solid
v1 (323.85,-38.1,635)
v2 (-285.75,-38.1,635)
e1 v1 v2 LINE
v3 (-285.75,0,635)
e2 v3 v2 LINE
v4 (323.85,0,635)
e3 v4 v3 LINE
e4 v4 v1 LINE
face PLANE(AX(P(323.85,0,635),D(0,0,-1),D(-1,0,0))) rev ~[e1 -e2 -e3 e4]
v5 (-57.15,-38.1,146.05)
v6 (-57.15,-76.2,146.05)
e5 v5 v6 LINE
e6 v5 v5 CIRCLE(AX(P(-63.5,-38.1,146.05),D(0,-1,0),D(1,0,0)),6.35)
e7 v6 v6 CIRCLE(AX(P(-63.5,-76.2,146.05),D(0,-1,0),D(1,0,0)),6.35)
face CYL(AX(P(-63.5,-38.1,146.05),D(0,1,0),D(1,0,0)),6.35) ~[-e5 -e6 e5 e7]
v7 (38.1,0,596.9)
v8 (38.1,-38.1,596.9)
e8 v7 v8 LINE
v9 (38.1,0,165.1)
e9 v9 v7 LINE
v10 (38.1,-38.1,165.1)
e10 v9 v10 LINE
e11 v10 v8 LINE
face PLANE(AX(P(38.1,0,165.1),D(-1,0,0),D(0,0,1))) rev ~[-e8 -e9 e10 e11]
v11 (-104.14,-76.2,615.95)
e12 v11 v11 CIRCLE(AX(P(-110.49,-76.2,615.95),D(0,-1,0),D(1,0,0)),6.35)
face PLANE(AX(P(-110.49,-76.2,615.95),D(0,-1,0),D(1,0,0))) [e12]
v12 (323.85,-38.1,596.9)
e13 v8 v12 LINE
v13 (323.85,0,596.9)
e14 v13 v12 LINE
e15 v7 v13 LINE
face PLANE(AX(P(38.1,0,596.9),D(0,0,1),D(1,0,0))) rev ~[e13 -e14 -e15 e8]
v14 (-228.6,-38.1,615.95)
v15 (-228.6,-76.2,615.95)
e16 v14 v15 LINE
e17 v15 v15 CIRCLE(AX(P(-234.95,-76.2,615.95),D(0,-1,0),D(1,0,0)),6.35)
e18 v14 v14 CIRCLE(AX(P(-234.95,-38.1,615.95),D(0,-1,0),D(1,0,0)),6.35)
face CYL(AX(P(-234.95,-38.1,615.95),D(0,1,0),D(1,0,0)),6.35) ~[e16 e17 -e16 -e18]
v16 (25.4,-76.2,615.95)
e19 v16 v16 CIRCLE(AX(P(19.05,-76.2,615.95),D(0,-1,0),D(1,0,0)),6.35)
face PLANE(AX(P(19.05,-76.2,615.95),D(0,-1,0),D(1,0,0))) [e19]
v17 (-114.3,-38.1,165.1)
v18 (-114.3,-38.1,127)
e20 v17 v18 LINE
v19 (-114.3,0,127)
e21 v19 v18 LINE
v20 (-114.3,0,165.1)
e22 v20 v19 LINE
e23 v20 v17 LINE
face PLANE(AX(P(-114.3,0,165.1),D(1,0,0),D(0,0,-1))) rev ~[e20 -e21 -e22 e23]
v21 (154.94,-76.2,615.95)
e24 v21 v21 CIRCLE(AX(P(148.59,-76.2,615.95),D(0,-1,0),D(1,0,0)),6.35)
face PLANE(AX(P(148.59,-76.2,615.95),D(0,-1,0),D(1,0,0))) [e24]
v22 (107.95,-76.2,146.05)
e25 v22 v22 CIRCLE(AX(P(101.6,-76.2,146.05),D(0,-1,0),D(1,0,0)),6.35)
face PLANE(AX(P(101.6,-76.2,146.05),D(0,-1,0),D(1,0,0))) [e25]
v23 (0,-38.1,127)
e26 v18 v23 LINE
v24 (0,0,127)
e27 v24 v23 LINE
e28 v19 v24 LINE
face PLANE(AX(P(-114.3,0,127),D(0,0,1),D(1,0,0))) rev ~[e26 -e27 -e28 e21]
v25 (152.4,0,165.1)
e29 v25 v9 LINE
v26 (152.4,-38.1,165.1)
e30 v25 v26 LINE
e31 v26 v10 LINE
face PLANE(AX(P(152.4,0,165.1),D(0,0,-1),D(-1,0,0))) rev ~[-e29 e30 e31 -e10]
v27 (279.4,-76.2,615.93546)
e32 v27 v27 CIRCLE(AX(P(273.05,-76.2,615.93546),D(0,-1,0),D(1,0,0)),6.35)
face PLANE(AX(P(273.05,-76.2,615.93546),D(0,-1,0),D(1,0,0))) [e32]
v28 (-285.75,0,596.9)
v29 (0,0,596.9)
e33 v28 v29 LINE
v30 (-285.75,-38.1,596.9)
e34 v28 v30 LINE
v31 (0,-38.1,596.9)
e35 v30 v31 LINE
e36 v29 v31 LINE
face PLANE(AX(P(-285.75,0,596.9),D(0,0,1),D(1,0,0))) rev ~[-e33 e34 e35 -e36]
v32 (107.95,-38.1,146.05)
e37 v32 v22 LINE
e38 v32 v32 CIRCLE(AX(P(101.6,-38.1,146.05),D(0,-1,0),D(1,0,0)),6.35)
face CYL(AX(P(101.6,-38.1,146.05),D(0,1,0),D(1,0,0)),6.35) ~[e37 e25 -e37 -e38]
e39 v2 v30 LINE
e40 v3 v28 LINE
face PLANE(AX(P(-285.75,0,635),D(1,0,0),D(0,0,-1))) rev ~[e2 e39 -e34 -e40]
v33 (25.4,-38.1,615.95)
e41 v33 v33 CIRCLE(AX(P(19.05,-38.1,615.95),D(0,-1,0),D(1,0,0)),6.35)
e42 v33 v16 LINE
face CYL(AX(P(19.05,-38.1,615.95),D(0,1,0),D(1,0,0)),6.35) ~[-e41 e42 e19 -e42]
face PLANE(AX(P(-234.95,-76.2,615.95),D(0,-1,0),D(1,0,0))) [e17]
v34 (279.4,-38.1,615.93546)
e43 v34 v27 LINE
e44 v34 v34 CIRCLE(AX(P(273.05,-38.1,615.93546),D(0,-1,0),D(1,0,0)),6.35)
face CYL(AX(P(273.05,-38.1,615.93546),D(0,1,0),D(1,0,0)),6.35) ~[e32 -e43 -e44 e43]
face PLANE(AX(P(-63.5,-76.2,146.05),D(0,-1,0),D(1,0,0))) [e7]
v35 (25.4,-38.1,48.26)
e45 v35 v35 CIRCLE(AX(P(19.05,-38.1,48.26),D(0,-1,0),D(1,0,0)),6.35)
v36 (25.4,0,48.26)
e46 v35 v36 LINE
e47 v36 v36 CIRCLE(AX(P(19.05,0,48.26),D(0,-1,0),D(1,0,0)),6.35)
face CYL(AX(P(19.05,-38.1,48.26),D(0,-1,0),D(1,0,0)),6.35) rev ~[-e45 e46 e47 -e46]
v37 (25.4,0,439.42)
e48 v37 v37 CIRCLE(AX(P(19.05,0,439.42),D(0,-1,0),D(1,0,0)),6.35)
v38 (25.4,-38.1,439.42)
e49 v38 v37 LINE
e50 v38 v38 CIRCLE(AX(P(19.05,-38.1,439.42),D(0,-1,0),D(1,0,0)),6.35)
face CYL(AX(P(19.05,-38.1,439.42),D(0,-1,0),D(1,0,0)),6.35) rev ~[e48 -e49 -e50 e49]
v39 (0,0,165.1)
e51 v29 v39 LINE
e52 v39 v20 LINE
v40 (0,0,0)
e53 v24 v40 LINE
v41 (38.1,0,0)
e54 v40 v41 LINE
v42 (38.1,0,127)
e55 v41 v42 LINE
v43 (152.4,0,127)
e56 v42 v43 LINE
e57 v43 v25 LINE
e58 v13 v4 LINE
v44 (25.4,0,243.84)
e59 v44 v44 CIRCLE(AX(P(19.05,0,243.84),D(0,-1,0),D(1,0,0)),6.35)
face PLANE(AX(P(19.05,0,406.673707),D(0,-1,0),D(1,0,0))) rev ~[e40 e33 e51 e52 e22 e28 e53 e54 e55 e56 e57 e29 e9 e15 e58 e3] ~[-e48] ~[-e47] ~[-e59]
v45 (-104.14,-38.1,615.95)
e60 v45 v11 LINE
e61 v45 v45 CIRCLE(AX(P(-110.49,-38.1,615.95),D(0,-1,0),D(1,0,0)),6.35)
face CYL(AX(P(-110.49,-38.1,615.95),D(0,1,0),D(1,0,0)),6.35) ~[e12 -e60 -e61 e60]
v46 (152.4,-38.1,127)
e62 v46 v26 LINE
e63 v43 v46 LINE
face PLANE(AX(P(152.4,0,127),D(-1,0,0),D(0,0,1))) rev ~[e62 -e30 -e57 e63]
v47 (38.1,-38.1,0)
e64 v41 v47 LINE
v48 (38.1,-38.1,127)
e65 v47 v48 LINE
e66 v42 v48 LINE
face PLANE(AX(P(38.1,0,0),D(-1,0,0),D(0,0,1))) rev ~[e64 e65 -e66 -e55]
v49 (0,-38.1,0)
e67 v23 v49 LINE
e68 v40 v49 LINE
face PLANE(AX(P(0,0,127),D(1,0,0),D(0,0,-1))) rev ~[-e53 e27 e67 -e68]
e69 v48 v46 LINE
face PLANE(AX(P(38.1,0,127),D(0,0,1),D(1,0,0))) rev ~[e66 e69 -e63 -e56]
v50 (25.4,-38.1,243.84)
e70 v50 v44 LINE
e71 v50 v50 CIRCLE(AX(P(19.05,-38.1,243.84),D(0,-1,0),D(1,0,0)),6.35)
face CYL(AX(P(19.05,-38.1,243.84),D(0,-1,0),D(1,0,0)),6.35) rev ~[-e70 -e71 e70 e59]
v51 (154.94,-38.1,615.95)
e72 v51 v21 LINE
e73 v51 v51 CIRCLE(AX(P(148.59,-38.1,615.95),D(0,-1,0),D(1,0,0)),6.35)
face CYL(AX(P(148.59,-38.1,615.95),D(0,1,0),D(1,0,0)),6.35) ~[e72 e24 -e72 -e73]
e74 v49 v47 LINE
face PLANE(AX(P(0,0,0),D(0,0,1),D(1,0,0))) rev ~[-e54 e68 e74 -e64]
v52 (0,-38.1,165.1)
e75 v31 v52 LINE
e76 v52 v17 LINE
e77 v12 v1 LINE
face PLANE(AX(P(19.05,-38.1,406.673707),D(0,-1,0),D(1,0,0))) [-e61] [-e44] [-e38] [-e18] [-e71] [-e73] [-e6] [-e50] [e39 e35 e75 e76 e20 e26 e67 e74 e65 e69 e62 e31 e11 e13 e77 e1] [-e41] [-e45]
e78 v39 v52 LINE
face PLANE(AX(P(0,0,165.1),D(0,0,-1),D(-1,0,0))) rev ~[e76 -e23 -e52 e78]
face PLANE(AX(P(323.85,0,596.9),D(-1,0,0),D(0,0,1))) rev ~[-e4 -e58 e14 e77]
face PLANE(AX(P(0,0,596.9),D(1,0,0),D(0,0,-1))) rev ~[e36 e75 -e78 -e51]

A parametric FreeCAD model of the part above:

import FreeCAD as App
import Part
import Sketcher
Q = App.Units.Quantity

doc = App.newDocument("Part")
body = doc.addObject("PartDesign::Body", "Body")

# Sketch on XZ plane
sketch1 = body.newObject("Sketcher::SketchObject", "Sketch")
sketch1.AttachmentSupport = (doc.getObject("XZ_Plane"), [""])
sketch1.MapMode = "FlatFace"
sketch1.addGeometry([
    Part.LineSegment(App.Vector(323.85, 635, 0), App.Vector(-285.75, 635, 0)),  # 0
    Part.LineSegment(App.Vector(-285.75, 635, 0), App.Vector(-285.75, 596.9, 0)),  # 1
    Part.LineSegment(App.Vector(-285.75, 596.9, 0), App.Vector(0, 596.9, 0)),  # 2
    Part.LineSegment(App.Vector(0, 596.9, 0), App.Vector(0, 165.1, 0)),  # 3
    Part.LineSegment(App.Vector(0, 165.1, 0), App.Vector(-114.3, 165.1, 0)),  # 4
    Part.LineSegment(App.Vector(-114.3, 165.1, 0), App.Vector(-114.3, 127, 0)),  # 5
    Part.LineSegment(App.Vector(-114.3, 127, 0), App.Vector(0, 127, 0)),  # 6
    Part.LineSegment(App.Vector(0, 127, 0), App.Vector(0, 0, 0)),  # 7
    Part.LineSegment(App.Vector(0, 0, 0), App.Vector(38.1, 0, 0)),  # 8
    Part.LineSegment(App.Vector(38.1, 0, 0), App.Vector(38.1, 127, 0)),  # 9
    Part.LineSegment(App.Vector(38.1, 127, 0), App.Vector(152.4, 127, 0)),  # 10
    Part.LineSegment(App.Vector(152.4, 127, 0), App.Vector(152.4, 165.1, 0)),  # 11
    Part.LineSegment(App.Vector(152.4, 165.1, 0), App.Vector(38.1, 165.1, 0)),  # 12
    Part.LineSegment(App.Vector(38.1, 165.1, 0), App.Vector(38.1, 596.9, 0)),  # 13
    Part.LineSegment(App.Vector(38.1, 596.9, 0), App.Vector(323.85, 596.9, 0)),  # 14
    Part.LineSegment(App.Vector(323.85, 596.9, 0), App.Vector(323.85, 635, 0)),  # 15
], False)
sketch1.addConstraint([
    Sketcher.Constraint("Coincident", 0, 2, 1, 1),
    Sketcher.Constraint("Coincident", 1, 2, 2, 1),
    Sketcher.Constraint("Coincident", 2, 2, 3, 1),
    Sketcher.Constraint("Coincident", 3, 2, 4, 1),
    Sketcher.Constraint("Coincident", 4, 2, 5, 1),
    Sketcher.Constraint("Coincident", 5, 2, 6, 1),
    Sketcher.Constraint("Coincident", 6, 2, 7, 1),
    Sketcher.Constraint("Coincident", 7, 2, 8, 1),
    Sketcher.Constraint("Coincident", 8, 2, 9, 1),
    Sketcher.Constraint("Coincident", 9, 2, 10, 1),
    Sketcher.Constraint("Coincident", 10, 2, 11, 1),
    Sketcher.Constraint("Coincident", 11, 2, 12, 1),
    Sketcher.Constraint("Coincident", 12, 2, 13, 1),
    Sketcher.Constraint("Coincident", 13, 2, 14, 1),
    Sketcher.Constraint("Coincident", 14, 2, 15, 1),
    Sketcher.Constraint("Coincident", 15, 2, 0, 1),
    Sketcher.Constraint("Horizontal", 0),
    Sketcher.Constraint("Vertical", 1),
    Sketcher.Constraint("Horizontal", 2),
    Sketcher.Constraint("Vertical", 3),
    Sketcher.Constraint("Horizontal", 4),
    Sketcher.Constraint("Vertical", 5),
    Sketcher.Constraint("Horizontal", 6),
    Sketcher.Constraint("Vertical", 7),
    Sketcher.Constraint("Horizontal", 8),
    Sketcher.Constraint("Vertical", 9),
    Sketcher.Constraint("Horizontal", 10),
    Sketcher.Constraint("Vertical", 11),
    Sketcher.Constraint("Horizontal", 12),
    Sketcher.Constraint("Vertical", 13),
    Sketcher.Constraint("Horizontal", 14),
    Sketcher.Constraint("Vertical", 15),
    Sketcher.Constraint("Coincident", 7, 2, -1, 1),
    Sketcher.Constraint("PointOnObject", 2, 2, -2),
    Sketcher.Constraint("Horizontal", 6, 2, 9, 2),
    Sketcher.Constraint("Horizontal", 4, 2, 11, 2),
    Sketcher.Constraint("Horizontal", 2, 2, 13, 2),
    Sketcher.Constraint("Vertical", 9, 2, 12, 2),
    Sketcher.Constraint("Equal", 6, 10),
    Sketcher.Constraint("Equal", 2, 14),
    Sketcher.Constraint("Equal", 8, 1),
    Sketcher.Constraint("Equal", 1, 5),
    Sketcher.Constraint("DistanceX", 0, 2, 0, 1, Q("24 in")),
    Sketcher.Constraint("DistanceY", 3, 2, 3, 1, Q("17 in")),
    Sketcher.Constraint("DistanceY", 7, 2, 7, 1, Q("5 in")),
    Sketcher.Constraint("DistanceX", 4, 2, 4, 1, Q("4.5 in")),
    Sketcher.Constraint("DistanceX", 8, 1, 8, 2, Q("1.5 in")),
])
pad1 = body.newObject("PartDesign::Pad", "Pad")
pad1.Profile = sketch1
pad1.Length = Q("1.5 in")

# Sketch on XZ plane
sketch2 = body.newObject("Sketcher::SketchObject", "Sketch001")
sketch2.AttachmentSupport = (doc.getObject("XZ_Plane"), [""])
sketch2.MapMode = "FlatFace"
sketch2.addGeometry([
    Part.LineSegment(App.Vector(323.85, 635, 0), App.Vector(-285.75, 635, 0)),  # 0
    Part.LineSegment(App.Vector(-285.75, 635, 0), App.Vector(-285.75, 596.9, 0)),  # 1
    Part.LineSegment(App.Vector(-285.75, 596.9, 0), App.Vector(0, 596.9, 0)),  # 2
    Part.LineSegment(App.Vector(0, 596.9, 0), App.Vector(0, 165.1, 0)),  # 3
    Part.LineSegment(App.Vector(0, 165.1, 0), App.Vector(-114.3, 165.1, 0)),  # 4
    Part.LineSegment(App.Vector(-114.3, 165.1, 0), App.Vector(-114.3, 127, 0)),  # 5
    Part.LineSegment(App.Vector(-114.3, 127, 0), App.Vector(0, 127, 0)),  # 6
    Part.LineSegment(App.Vector(0, 127, 0), App.Vector(0, 0, 0)),  # 7
    Part.LineSegment(App.Vector(0, 0, 0), App.Vector(38.1, 0, 0)),  # 8
    Part.LineSegment(App.Vector(38.1, 0, 0), App.Vector(38.1, 127, 0)),  # 9
    Part.LineSegment(App.Vector(38.1, 127, 0), App.Vector(152.4, 127, 0)),  # 10
    Part.LineSegment(App.Vector(152.4, 127, 0), App.Vector(152.4, 165.1, 0)),  # 11
    Part.LineSegment(App.Vector(152.4, 165.1, 0), App.Vector(38.1, 165.1, 0)),  # 12
    Part.LineSegment(App.Vector(38.1, 165.1, 0), App.Vector(38.1, 596.9, 0)),  # 13
    Part.LineSegment(App.Vector(38.1, 596.9, 0), App.Vector(323.85, 596.9, 0)),  # 14
    Part.LineSegment(App.Vector(323.85, 596.9, 0), App.Vector(323.85, 635, 0)),  # 15
], False)
sketch2.addConstraint([
    Sketcher.Constraint("Coincident", 0, 2, 1, 1),
    Sketcher.Constraint("Coincident", 1, 2, 2, 1),
    Sketcher.Constraint("Coincident", 2, 2, 3, 1),
    Sketcher.Constraint("Coincident", 3, 2, 4, 1),
    Sketcher.Constraint("Coincident", 4, 2, 5, 1),
    Sketcher.Constraint("Coincident", 5, 2, 6, 1),
    Sketcher.Constraint("Coincident", 6, 2, 7, 1),
    Sketcher.Constraint("Coincident", 7, 2, 8, 1),
    Sketcher.Constraint("Coincident", 8, 2, 9, 1),
    Sketcher.Constraint("Coincident", 9, 2, 10, 1),
    Sketcher.Constraint("Coincident", 10, 2, 11, 1),
    Sketcher.Constraint("Coincident", 11, 2, 12, 1),
    Sketcher.Constraint("Coincident", 12, 2, 13, 1),
    Sketcher.Constraint("Coincident", 13, 2, 14, 1),
    Sketcher.Constraint("Coincident", 14, 2, 15, 1),
    Sketcher.Constraint("Coincident", 15, 2, 0, 1),
    Sketcher.Constraint("Horizontal", 0),
    Sketcher.Constraint("Vertical", 1),
    Sketcher.Constraint("Horizontal", 2),
    Sketcher.Constraint("Vertical", 3),
    Sketcher.Constraint("Horizontal", 4),
    Sketcher.Constraint("Vertical", 5),
    Sketcher.Constraint("Horizontal", 6),
    Sketcher.Constraint("Vertical", 7),
    Sketcher.Constraint("Horizontal", 8),
    Sketcher.Constraint("Vertical", 9),
    Sketcher.Constraint("Horizontal", 10),
    Sketcher.Constraint("Vertical", 11),
    Sketcher.Constraint("Horizontal", 12),
    Sketcher.Constraint("Vertical", 13),
    Sketcher.Constraint("Horizontal", 14),
    Sketcher.Constraint("Vertical", 15),
    Sketcher.Constraint("Coincident", 7, 2, -1, 1),
    Sketcher.Constraint("PointOnObject", 2, 2, -2),
    Sketcher.Constraint("Horizontal", 6, 2, 9, 2),
    Sketcher.Constraint("Horizontal", 4, 2, 11, 2),
    Sketcher.Constraint("Horizontal", 2, 2, 13, 2),
    Sketcher.Constraint("Vertical", 9, 2, 12, 2),
    Sketcher.Constraint("Equal", 6, 10),
    Sketcher.Constraint("Equal", 2, 14),
    Sketcher.Constraint("Equal", 8, 1),
    Sketcher.Constraint("Equal", 1, 5),
    Sketcher.Constraint("DistanceX", 0, 2, 0, 1, Q("24 in")),
    Sketcher.Constraint("DistanceY", 3, 2, 3, 1, Q("17 in")),
    Sketcher.Constraint("DistanceY", 7, 2, 7, 1, Q("5 in")),
    Sketcher.Constraint("DistanceX", 4, 2, 4, 1, Q("4.5 in")),
    Sketcher.Constraint("DistanceX", 8, 1, 8, 2, Q("1.5 in")),
])
pad2 = body.newObject("PartDesign::Pad", "Pad001")
pad2.Profile = sketch2
pad2.Length = Q("1.5 in")

# Sketch on XZ plane
sketch3 = body.newObject("Sketcher::SketchObject", "Sketch002")
sketch3.AttachmentSupport = (doc.getObject("XZ_Plane"), [""])
sketch3.MapMode = "FlatFace"
sketch3.AttachmentOffset = App.Placement(App.Vector(0, 0, 1.5 * 25.4), App.Rotation())
sketch3.addGeometry([
    Part.Circle(App.Vector(-234.95, 615.95, 0), App.Vector(0, 0, 1), 6.35),  # 0
    Part.Circle(App.Vector(-110.49, 615.95, 0), App.Vector(0, 0, 1), 6.35),  # 1
    Part.Circle(App.Vector(19.05, 615.95, 0), App.Vector(0, 0, 1), 6.35),  # 2
    Part.Circle(App.Vector(148.59, 615.95, 0), App.Vector(0, 0, 1), 6.35),  # 3
    Part.Circle(App.Vector(273.05, 615.93546, 0), App.Vector(0, 0, 1), 6.35),  # 4
    Part.Circle(App.Vector(-63.5, 146.05, 0), App.Vector(0, 0, 1), 6.35),  # 5
    Part.Circle(App.Vector(101.6, 146.05, 0), App.Vector(0, 0, 1), 6.35),  # 6
], False)
sketch3.addConstraint([
    Sketcher.Constraint("Equal", 0, 1),
    Sketcher.Constraint("Equal", 1, 2),
    Sketcher.Constraint("Equal", 2, 3),
    Sketcher.Constraint("Equal", 3, 4),
    Sketcher.Constraint("Equal", 4, 5),
    Sketcher.Constraint("Equal", 5, 6),
    Sketcher.Constraint("Horizontal", 0, 3, 1, 3),
    Sketcher.Constraint("Horizontal", 1, 3, 2, 3),
    Sketcher.Constraint("Horizontal", 2, 3, 3, 3),
    Sketcher.Constraint("Horizontal", 5, 3, 6, 3),
    Sketcher.Constraint("Diameter", 0, Q("0.5 in")),
    Sketcher.Constraint("DistanceX", -1, 1, 6, 3, Q("4 in")),
    Sketcher.Constraint("DistanceX", 0, 3, 2, 3, Q("10 in")),
    Sketcher.Constraint("DistanceX", 2, 3, 4, 3, Q("10 in")),
    Sketcher.Constraint("DistanceX", 5, 3, -1, 1, Q("2.5 in")),
    Sketcher.Constraint("DistanceX", 0, 3, 1, 3, Q("4.9 in")),
    Sketcher.Constraint("DistanceX", 2, 3, 3, 3, Q("5.1 in")),
    Sketcher.Constraint("DistanceY", 5, 3, 1, 3, Q("18.5 in")),
    Sketcher.Constraint("DistanceX", 0, 3, -1, 1, Q("9.25 in")),
    Sketcher.Constraint("DistanceY", -1, 1, 0, 3, Q("24.25 in")),
    Sketcher.Constraint("DistanceY", -1, 1, 4, 3, Q("615.93546 mm")),
])
pad3 = body.newObject("PartDesign::Pad", "Pad002")
pad3.Profile = sketch3
pad3.Length = Q("1.5 in")

# Sketch on XZ plane
sketch4 = body.newObject("Sketcher::SketchObject", "Sketch003")
sketch4.AttachmentSupport = (doc.getObject("XZ_Plane"), [""])
sketch4.MapMode = "FlatFace"
sketch4.AttachmentOffset = App.Placement(App.Vector(0, 0, 1.5 * 25.4), App.Rotation())
sketch4.addGeometry([
    Part.Circle(App.Vector(19.05, 439.42, 0), App.Vector(0, 0, 1), 6.35),
    Part.Circle(App.Vector(19.05, 243.84, 0), App.Vector(0, 0, 1), 6.35),
    Part.Circle(App.Vector(19.05, 48.26, 0), App.Vector(0, 0, 1), 6.35),
], False)
sketch4.addConstraint([
    Sketcher.Constraint("Equal", 0, 1),
    Sketcher.Constraint("Equal", 1, 2),
    Sketcher.Constraint("Vertical", 0, 3, 1, 3),
    Sketcher.Constraint("Vertical", 1, 3, 2, 3),
    Sketcher.Constraint("Diameter", 0, Q("0.5 in")),
    Sketcher.Constraint("DistanceY", -1, 1, 0, 3, Q("17.3 in")),
    Sketcher.Constraint("DistanceY", -1, 1, 1, 3, Q("9.6 in")),
    Sketcher.Constraint("DistanceY", -1, 1, 2, 3, Q("1.9 in")),
    Sketcher.Constraint("DistanceX", -1, 1, 0, 3, Q("0.75 in")),
])
pocket1 = body.newObject("PartDesign::Pocket", "Pocket")
pocket1.Profile = sketch4
pocket1.Length = Q("1.5 in")

doc.recompute()
